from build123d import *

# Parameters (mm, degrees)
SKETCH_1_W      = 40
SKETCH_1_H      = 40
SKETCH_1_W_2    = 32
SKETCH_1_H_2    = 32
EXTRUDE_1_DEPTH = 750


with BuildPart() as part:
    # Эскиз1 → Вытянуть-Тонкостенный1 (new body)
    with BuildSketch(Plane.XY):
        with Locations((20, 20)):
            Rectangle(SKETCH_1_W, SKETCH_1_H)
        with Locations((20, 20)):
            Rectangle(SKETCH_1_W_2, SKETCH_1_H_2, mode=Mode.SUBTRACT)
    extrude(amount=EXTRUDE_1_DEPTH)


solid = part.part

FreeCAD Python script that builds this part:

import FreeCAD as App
import Part
import Sketcher

V = App.Vector
Q = App.Units.Quantity


def add_polygon(sketch, points):
    """Adds a closed chain of lines whose ends are joined by coincident constraints."""
    first, n = sketch.GeometryCount, len(points)
    for a, b in zip(points, points[1:] + points[:1]):
        sketch.addGeometry(Part.LineSegment(App.Vector(*a, 0), App.Vector(*b, 0)), False)
    for i in range(n):
        sketch.addConstraint(Sketcher.Constraint("Coincident", first + i, 2, first + (i + 1) % n, 1))

doc = App.newDocument("Part")
params = doc.addObject("Spreadsheet::Sheet", "Params")
for row, (alias, value) in enumerate([
    ("sketch1_width", "40 mm"),
    ("sketch1_width2", "32 mm"),
    ("pad1_length", "750 mm"),
], start=1):
    params.set(f"A{row}", alias)
    params.set(f"B{row}", "=" + value)
    params.setAlias(f"B{row}", alias)

body = doc.addObject("PartDesign::Body", "Body")

sketch1 = doc.addObject("Sketcher::SketchObject", "Sketch")
body.addObject(sketch1)
sketch1.AttachmentSupport = (doc.XY_Plane, [""])
sketch1.MapMode = "FlatFace"
add_polygon(sketch1, [(0, 40), (0, 0), (40, 0), (40, 40)])
add_polygon(sketch1, [(36, 4), (4, 4), (4, 36), (36, 36)])
sketch1.addConstraint([
    Sketcher.Constraint("Vertical", 0),
    Sketcher.Constraint("Horizontal", 1),
    Sketcher.Constraint("Vertical", 2),
    Sketcher.Constraint("Horizontal", 3),
    Sketcher.Constraint("Horizontal", 4),
    Sketcher.Constraint("Vertical", 5),
    Sketcher.Constraint("Horizontal", 6),
    Sketcher.Constraint("Vertical", 7),
    Sketcher.Constraint("Coincident", 0, 2, -1, 1),
    Sketcher.Constraint("Equal", 3, 0),
    Sketcher.Constraint("Equal", 6, 5),
    Sketcher.Constraint("DistanceX", 1, 1, 1, 2, Q("40 mm")),
    Sketcher.Constraint("DistanceX", 4, 2, 4, 1, Q("32 mm")),
    Sketcher.Constraint("DistanceX", -1, 1, 4, 2, Q("4 mm")),
    Sketcher.Constraint("DistanceY", -1, 1, 4, 2, Q("4 mm")),
])
sketch1.setExpression("Constraints[19]", "Params.sketch1_width")
sketch1.setExpression("Constraints[20]", "Params.sketch1_width2")
pad1 = doc.addObject("PartDesign::Pad", "Pad")
body.addObject(pad1)
pad1.Profile = sketch1
pad1.setExpression("Length", "Params.pad1_length")

doc.recompute()
